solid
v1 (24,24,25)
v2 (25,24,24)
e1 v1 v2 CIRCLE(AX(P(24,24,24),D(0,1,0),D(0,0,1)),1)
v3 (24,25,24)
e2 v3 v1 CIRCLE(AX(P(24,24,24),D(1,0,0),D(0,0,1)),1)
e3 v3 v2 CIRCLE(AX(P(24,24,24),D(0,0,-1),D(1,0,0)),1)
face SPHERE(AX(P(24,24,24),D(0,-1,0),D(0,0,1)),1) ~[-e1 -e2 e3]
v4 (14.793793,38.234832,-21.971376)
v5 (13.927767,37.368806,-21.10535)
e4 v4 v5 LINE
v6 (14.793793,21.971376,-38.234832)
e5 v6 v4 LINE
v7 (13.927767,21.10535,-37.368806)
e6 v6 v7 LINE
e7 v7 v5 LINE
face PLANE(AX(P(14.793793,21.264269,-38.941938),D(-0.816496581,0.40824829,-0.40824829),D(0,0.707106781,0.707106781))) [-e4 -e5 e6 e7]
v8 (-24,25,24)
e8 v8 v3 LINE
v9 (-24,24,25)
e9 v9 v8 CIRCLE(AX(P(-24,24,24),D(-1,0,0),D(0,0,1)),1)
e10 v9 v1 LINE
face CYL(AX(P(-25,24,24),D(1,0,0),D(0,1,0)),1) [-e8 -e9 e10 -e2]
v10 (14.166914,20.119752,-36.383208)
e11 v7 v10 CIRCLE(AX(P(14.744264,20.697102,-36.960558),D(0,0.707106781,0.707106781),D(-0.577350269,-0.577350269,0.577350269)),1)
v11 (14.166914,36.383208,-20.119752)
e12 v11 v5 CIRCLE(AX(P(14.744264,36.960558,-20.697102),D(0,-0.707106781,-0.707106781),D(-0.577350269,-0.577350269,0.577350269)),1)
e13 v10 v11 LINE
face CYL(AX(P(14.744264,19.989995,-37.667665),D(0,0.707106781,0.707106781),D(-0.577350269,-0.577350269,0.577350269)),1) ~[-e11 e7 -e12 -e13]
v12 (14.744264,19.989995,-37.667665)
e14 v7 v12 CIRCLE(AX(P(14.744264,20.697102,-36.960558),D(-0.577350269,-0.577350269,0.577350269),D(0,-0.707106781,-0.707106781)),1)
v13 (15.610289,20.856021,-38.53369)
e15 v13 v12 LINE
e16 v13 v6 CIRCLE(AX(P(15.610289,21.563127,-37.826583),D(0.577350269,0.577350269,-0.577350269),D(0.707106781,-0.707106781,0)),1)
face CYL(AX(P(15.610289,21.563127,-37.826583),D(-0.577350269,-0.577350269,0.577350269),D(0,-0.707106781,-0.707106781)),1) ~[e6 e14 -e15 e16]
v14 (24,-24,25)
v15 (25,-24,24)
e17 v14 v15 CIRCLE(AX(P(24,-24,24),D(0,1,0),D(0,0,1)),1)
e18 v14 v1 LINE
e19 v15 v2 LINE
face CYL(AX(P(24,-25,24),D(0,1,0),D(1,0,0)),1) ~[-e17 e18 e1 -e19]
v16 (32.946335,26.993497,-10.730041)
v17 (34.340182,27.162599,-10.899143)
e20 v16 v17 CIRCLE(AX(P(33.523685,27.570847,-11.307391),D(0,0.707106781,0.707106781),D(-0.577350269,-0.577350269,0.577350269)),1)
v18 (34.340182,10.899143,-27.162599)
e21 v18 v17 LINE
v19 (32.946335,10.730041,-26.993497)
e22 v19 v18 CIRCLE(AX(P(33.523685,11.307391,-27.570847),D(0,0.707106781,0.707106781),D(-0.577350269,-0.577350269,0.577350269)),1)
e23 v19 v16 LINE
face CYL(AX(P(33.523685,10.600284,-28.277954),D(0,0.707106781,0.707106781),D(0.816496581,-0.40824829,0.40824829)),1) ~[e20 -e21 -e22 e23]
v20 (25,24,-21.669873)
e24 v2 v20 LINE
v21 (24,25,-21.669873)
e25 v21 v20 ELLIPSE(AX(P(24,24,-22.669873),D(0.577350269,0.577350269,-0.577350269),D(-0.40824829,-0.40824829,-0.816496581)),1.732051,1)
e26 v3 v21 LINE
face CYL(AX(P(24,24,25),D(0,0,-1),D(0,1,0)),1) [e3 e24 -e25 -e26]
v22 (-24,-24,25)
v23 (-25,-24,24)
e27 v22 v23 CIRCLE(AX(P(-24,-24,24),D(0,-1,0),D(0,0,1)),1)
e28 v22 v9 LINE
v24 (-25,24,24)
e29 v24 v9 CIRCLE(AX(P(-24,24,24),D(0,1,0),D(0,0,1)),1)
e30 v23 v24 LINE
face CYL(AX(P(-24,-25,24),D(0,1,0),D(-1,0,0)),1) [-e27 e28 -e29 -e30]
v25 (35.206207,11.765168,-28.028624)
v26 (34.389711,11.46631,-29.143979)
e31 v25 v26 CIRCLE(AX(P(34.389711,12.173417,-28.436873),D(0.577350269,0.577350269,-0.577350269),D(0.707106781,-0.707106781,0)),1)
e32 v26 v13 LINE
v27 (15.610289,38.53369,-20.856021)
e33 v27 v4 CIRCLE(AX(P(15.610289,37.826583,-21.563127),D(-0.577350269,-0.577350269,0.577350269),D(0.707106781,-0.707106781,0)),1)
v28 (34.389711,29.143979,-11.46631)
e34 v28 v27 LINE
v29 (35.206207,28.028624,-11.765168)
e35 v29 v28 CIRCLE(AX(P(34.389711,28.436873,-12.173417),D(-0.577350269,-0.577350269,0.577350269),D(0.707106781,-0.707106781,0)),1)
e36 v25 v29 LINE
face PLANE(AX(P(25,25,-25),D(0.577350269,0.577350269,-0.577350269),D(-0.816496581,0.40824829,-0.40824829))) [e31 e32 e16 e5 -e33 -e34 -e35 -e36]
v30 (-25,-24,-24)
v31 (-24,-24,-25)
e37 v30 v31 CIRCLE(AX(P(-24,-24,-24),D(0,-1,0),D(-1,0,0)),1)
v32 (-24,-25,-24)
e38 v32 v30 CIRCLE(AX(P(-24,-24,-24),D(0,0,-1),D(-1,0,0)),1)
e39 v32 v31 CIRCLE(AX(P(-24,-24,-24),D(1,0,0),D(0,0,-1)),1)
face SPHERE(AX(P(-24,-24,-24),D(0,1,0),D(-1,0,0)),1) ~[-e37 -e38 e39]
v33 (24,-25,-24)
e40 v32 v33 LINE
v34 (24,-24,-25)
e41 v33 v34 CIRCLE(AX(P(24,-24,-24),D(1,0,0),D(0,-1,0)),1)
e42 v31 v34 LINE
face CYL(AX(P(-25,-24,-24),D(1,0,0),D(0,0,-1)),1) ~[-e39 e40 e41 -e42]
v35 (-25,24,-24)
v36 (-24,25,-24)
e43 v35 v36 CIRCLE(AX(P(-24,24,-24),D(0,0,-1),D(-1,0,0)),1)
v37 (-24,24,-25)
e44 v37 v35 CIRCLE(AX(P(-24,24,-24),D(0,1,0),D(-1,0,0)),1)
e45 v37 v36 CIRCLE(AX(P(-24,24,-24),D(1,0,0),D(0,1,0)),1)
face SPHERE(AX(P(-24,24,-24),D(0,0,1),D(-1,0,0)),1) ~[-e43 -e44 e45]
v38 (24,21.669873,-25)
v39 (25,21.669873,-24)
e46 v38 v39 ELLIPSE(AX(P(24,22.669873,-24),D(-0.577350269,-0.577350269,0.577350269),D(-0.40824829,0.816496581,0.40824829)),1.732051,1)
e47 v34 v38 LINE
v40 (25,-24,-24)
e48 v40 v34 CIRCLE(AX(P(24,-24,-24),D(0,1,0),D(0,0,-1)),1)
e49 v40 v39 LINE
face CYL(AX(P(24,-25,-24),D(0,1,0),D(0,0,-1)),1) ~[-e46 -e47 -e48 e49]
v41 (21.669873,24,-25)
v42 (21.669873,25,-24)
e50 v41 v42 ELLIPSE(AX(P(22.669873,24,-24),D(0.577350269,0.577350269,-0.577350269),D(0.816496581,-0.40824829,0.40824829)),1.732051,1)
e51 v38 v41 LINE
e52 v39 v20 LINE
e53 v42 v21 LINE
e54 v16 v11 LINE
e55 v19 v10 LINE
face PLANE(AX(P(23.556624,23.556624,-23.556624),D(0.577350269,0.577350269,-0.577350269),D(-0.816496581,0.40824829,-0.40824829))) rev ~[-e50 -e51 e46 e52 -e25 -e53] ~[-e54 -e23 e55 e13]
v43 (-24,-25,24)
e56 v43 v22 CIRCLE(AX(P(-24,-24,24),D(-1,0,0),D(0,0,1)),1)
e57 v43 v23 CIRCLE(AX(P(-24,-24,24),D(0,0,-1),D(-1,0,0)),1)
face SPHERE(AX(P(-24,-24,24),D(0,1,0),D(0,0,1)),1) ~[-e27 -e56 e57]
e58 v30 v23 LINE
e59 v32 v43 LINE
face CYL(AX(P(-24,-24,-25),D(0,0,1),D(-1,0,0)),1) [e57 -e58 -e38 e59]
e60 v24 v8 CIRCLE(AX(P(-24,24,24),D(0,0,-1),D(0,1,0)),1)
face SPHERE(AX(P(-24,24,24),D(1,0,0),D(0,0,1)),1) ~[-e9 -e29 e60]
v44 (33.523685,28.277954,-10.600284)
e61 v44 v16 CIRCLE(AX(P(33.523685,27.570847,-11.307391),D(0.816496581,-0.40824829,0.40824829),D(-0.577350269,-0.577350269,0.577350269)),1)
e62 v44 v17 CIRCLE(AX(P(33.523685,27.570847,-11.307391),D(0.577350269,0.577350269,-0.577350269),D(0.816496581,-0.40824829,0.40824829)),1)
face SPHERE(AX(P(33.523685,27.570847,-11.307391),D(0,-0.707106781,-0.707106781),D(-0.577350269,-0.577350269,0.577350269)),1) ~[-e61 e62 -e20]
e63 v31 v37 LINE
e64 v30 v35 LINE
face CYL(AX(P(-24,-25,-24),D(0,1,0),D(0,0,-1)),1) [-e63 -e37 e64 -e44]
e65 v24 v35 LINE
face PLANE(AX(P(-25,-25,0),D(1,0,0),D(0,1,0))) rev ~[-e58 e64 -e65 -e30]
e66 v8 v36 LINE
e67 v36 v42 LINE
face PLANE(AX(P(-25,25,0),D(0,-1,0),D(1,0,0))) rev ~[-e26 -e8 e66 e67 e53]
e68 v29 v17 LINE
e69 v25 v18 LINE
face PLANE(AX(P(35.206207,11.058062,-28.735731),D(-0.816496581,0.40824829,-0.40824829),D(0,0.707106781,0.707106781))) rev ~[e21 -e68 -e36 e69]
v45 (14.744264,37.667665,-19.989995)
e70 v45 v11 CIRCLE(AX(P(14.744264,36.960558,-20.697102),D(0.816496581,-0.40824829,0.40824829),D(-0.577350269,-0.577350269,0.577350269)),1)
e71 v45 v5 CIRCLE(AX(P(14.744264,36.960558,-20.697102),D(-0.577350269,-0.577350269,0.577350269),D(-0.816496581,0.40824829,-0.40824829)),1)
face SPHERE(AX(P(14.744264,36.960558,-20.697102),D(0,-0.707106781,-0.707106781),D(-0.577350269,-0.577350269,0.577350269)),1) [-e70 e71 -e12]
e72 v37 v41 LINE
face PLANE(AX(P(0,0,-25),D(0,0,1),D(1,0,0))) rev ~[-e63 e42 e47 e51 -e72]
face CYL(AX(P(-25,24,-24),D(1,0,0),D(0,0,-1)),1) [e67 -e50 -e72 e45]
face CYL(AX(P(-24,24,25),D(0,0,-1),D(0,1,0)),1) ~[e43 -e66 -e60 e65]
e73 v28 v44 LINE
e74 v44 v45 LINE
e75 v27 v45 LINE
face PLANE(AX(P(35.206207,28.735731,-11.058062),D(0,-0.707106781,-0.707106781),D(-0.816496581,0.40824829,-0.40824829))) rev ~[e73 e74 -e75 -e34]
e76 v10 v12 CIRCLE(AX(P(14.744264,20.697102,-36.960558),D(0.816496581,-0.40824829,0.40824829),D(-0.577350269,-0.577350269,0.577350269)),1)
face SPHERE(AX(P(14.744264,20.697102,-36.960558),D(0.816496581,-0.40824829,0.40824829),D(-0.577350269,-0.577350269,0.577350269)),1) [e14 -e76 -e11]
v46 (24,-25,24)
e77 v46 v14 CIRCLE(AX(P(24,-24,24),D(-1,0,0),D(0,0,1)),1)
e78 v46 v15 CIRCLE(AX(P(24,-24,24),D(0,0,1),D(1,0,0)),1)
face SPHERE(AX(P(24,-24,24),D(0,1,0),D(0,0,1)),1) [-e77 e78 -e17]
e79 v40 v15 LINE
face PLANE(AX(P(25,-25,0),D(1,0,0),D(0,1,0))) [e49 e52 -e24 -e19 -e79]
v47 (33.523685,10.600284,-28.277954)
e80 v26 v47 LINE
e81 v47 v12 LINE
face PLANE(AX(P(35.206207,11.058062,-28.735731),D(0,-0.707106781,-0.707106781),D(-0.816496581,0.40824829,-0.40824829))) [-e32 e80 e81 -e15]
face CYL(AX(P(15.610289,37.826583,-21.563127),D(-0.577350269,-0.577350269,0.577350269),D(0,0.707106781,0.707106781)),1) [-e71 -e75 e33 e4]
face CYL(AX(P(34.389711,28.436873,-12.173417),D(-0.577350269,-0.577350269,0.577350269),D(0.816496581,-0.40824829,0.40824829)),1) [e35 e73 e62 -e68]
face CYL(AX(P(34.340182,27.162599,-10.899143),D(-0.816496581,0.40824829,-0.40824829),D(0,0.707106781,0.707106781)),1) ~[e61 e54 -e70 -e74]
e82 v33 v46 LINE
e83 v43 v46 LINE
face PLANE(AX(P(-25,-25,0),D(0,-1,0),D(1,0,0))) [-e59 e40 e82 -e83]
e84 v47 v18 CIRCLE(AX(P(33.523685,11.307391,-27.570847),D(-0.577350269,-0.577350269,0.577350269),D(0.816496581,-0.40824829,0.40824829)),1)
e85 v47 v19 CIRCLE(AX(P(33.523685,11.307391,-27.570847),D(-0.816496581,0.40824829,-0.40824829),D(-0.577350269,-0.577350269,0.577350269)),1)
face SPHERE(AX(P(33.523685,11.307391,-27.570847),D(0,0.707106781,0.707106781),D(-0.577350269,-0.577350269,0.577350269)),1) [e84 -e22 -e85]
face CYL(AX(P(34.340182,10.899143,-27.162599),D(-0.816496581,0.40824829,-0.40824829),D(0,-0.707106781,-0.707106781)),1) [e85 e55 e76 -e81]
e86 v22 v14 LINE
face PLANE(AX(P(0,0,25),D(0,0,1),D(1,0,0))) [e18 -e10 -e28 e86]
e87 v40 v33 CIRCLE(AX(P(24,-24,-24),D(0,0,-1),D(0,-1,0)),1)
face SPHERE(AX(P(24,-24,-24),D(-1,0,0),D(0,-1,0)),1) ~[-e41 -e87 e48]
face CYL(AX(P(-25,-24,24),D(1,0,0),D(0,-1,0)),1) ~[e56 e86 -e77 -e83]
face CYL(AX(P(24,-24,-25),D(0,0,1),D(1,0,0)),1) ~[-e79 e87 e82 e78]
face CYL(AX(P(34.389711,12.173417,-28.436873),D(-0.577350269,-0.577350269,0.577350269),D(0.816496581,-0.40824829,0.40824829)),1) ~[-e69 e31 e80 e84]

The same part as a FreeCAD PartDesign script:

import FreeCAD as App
import Part
import Sketcher
from FreeCAD import Vector
Q = App.Units.Quantity


def edges_at(feature, points):
    """Names of the edges that pass closest to the given points."""
    edges = feature.Shape.Edges
    near = lambda p: min(range(len(edges)), key=lambda i: edges[i].distToShape(Part.Vertex(*p))[0])
    return sorted({f"Edge{near(p) + 1}" for p in points})


def add_polygon(sketch, points):
    """Adds a closed chain of lines whose ends are joined by coincident constraints."""
    first, n = sketch.GeometryCount, len(points)
    for a, b in zip(points, points[1:] + points[:1]):
        sketch.addGeometry(Part.LineSegment(App.Vector(*a, 0), App.Vector(*b, 0)), False)
    for i in range(n):
        sketch.addConstraint(Sketcher.Constraint("Coincident", first + i, 2, first + (i + 1) % n, 1))

doc = App.newDocument("Part")
params = doc.addObject("Spreadsheet::Sheet", "Params")
for row, (alias, value) in enumerate([
    ("sketch1_width", "50 mm"),
    ("pad1_length", "50 mm"),
    ("sketch2_width", "25 mm"),
    ("pad2_length", "2.5 mm"),
    ("fillet_radius", "1 mm"),
], start=1):
    params.set(f"A{row}", alias)
    params.set(f"B{row}", "=" + value)
    params.setAlias(f"B{row}", alias)

body = doc.addObject("PartDesign::Body", "Body")

sketch1 = body.newObject("Sketcher::SketchObject", "Sketch")
sketch1.AttachmentSupport = (doc.getObject("XY_Plane"), [""])
sketch1.MapMode = "FlatFace"
add_polygon(sketch1, [(-25, 25), (-25, -25), (25, -25), (25, 25)])
sketch1.addConstraint([
    Sketcher.Constraint("Vertical", 0),
    Sketcher.Constraint("Horizontal", 1),
    Sketcher.Constraint("Vertical", 2),
    Sketcher.Constraint("Horizontal", 3),
    Sketcher.Constraint("Symmetric", 0, 2, 2, 2, -1, 1),
    Sketcher.Constraint("Equal", 3, 0),
    Sketcher.Constraint("DistanceX", 1, 1, 1, 2, Q("50 mm")),
])
sketch1.setExpression("Constraints[10]", "Params.sketch1_width")
pad1 = body.newObject("PartDesign::Pad", "Pad")
pad1.Profile = sketch1
pad1.setExpression("Length", "Params.pad1_length")
pad1.Midplane = True

sketch2 = body.newObject("Sketcher::SketchObject", "Sketch001")
sketch2.Placement = App.Placement(Vector(25, 25, -25), App.Rotation(Vector(-0.816496581, 0.40824829, -0.40824829), Vector(0, 0.707106781, 0.707106781), Vector(0.577350269, 0.577350269, -0.577350269), "ZXY"))
add_polygon(sketch2, [(-12, 12), (-12, -12), (12, -12), (12, 12)])
sketch2.addConstraint([
    Sketcher.Constraint("Vertical", 0),
    Sketcher.Constraint("Horizontal", 1),
    Sketcher.Constraint("Vertical", 2),
    Sketcher.Constraint("Horizontal", 3),
    Sketcher.Constraint("Symmetric", 0, 2, 2, 2, -1, 1),
    Sketcher.Constraint("Equal", 3, 0),
    Sketcher.Constraint("DistanceX", 1, 1, 1, 2, Q("25 mm")),
])
sketch2.setExpression("Constraints[10]", "Params.sketch2_width")
pad2 = body.newObject("PartDesign::Pad", "Pad001")
pad2.Profile = sketch2
pad2.setExpression("Length", "Params.pad2_length")
pad2.Reversed = True
doc.recompute()

fillet = body.newObject("PartDesign::Fillet", "Fillet")
fillet.Base = (pad2, edges_at(pad2, [
    (25, 0, 25),
    (0, 25, 25),
    (-25, 0, 25),
    (0, -25, 25),
    (-25, 25, 0),
    (-25, 0, -25),
    (-25, -25, 0),
    (0, -25, -25),
    (25, -25, 0),
    (-2.165, 25, -25),
    (25, -2.165, -25),
    (25, 25, 2.165),
    (33.763, 18.454, -18.454),
    (23.557, 14.718, -32.395),
    (13.35, 28.66, -28.66),
    (23.557, 32.395, -14.718),
    (34.485, 28.014, -10.336),
    (14.072, 38.22, -20.543),
    (34.485, 10.336, -28.014),
    (14.072, 20.543, -38.22),
]))
fillet.setExpression("Radius", "Params.fillet_radius")

doc.recompute()
